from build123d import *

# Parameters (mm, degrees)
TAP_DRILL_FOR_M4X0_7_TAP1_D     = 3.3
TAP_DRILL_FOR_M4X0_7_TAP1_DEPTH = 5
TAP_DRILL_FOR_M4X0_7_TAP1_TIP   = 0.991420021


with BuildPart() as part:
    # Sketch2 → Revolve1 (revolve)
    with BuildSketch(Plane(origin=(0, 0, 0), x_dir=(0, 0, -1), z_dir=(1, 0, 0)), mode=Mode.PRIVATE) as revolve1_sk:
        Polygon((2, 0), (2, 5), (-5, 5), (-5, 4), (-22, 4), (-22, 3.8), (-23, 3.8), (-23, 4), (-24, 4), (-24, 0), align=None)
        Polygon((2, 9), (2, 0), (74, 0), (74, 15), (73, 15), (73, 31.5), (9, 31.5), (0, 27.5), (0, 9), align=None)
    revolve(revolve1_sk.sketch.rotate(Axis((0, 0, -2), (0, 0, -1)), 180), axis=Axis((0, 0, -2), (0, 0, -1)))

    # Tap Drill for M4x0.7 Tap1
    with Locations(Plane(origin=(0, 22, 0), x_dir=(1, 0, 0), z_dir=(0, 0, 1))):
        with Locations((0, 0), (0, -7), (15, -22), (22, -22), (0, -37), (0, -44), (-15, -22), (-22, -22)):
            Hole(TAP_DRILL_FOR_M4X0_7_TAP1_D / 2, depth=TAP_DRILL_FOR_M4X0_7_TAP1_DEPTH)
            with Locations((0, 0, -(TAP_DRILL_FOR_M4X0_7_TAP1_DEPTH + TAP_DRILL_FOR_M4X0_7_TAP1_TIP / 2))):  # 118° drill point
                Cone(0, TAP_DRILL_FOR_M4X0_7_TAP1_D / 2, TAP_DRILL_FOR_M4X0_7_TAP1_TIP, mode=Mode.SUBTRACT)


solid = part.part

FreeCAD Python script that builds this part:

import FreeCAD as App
import Part
import Sketcher
from FreeCAD import Vector


def add_polygon(sketch, points):
    """Adds a closed chain of lines whose ends are joined by coincident constraints."""
    first, n = sketch.GeometryCount, len(points)
    for a, b in zip(points, points[1:] + points[:1]):
        sketch.addGeometry(Part.LineSegment(App.Vector(*a, 0), App.Vector(*b, 0)), False)
    for i in range(n):
        sketch.addConstraint(Sketcher.Constraint("Coincident", first + i, 2, first + (i + 1) % n, 1))

doc = App.newDocument("Part")
body = doc.addObject("PartDesign::Body", "Body")

# Sketch on YZ plane
sketch1 = doc.addObject("Sketcher::SketchObject", "Sketch")
body.addObject(sketch1)
sketch1.AttachmentSupport = (doc.YZ_Plane, [""])
sketch1.MapMode = "FlatFace"
add_polygon(sketch1, [(5, -2), (5, 5), (4, 5), (4, 22), (3.8, 22), (3.8, 23), (4, 23), (4, 24), (0, 24), (0, -74), (15, -74), (15, -73), (31.5, -73), (31.5, -9), (27.5, 0), (9, 0), (9, -2)])  # lines 0-16
sketch1.addConstraint(Sketcher.Constraint("Vertical", 0))
sketch1.addConstraint(Sketcher.Constraint("Horizontal", 1))
sketch1.addConstraint(Sketcher.Constraint("Vertical", 2))
sketch1.addConstraint(Sketcher.Constraint("Horizontal", 3))
sketch1.addConstraint(Sketcher.Constraint("Vertical", 4))
sketch1.addConstraint(Sketcher.Constraint("Horizontal", 5))
sketch1.addConstraint(Sketcher.Constraint("Vertical", 6))
sketch1.addConstraint(Sketcher.Constraint("Horizontal", 7))
sketch1.addConstraint(Sketcher.Constraint("Vertical", 8))
sketch1.addConstraint(Sketcher.Constraint("Horizontal", 9))
sketch1.addConstraint(Sketcher.Constraint("Vertical", 10))
sketch1.addConstraint(Sketcher.Constraint("Horizontal", 11))
sketch1.addConstraint(Sketcher.Constraint("Vertical", 12))
sketch1.addConstraint(Sketcher.Constraint("Horizontal", 14))
sketch1.addConstraint(Sketcher.Constraint("Vertical", 15))
sketch1.addConstraint(Sketcher.Constraint("Horizontal", 16))
sketch1.addConstraint(Sketcher.Constraint("PointOnObject", 7, 2, -2))
sketch1.addConstraint(Sketcher.Constraint("PointOnObject", 13, 2, -1))
sketch1.addConstraint(Sketcher.Constraint("Vertical", 2, 2, 5, 2))
sketch1.addConstraint(Sketcher.Constraint("Equal", 7, 16))
sketch1.addConstraint(Sketcher.Constraint("Equal", 1, 4))
sketch1.addConstraint(Sketcher.Constraint("Equal", 4, 6))
sketch1.addConstraint(Sketcher.Constraint("Equal", 6, 10))
sketch1.addConstraint(Sketcher.Constraint("DistanceX", 1, 2, 1, 1, 1.0))
sketch1.addConstraint(Sketcher.Constraint("DistanceX", 7, 2, 7, 1, 4.0))
sketch1.addConstraint(Sketcher.Constraint("DistanceX", 9, 1, 9, 2, 15.0))
sketch1.addConstraint(Sketcher.Constraint("DistanceY", 0, 1, 0, 2, 7.0))
sketch1.addConstraint(Sketcher.Constraint("DistanceY", 2, 1, 2, 2, 17.0))
sketch1.addConstraint(Sketcher.Constraint("DistanceY", 8, 2, 8, 1, 98.0))
sketch1.addConstraint(Sketcher.Constraint("DistanceY", 12, 1, 12, 2, 64.0))
sketch1.addConstraint(Sketcher.Constraint("DistanceY", 15, 2, 15, 1, 2.0))
sketch1.addConstraint(Sketcher.Constraint("DistanceX", 3, 2, 3, 1, 0.2))
sketch1.addConstraint(Sketcher.Constraint("DistanceX", 11, 1, 11, 2, 16.5))
sketch1.addConstraint(Sketcher.Constraint("DistanceX", 14, 2, 14, 1, 18.5))
revolution = doc.addObject("PartDesign::Revolution", "Revolution")
body.addObject(revolution)
revolution.Profile = sketch1
revolution.ReferenceAxis = (sketch1, ["V_Axis"])
revolution.Angle = 360

# Sketch on XY plane
sketch2 = doc.addObject("Sketcher::SketchObject", "Sketch001")
body.addObject(sketch2)
sketch2.AttachmentSupport = (doc.XY_Plane, [""])
sketch2.MapMode = "FlatFace"
sketch2.addGeometry(Part.Circle(Vector(0, 22, 0), Vector(0, 0, 1), 1.6), False)
sketch2.addGeometry(Part.Circle(Vector(0, 15, 0), Vector(0, 0, 1), 1.6), False)
sketch2.addGeometry(Part.Circle(Vector(15, 0, 0), Vector(0, 0, 1), 1.6), False)
sketch2.addGeometry(Part.Circle(Vector(22, 0, 0), Vector(0, 0, 1), 1.6), False)
sketch2.addGeometry(Part.Circle(Vector(0, -15, 0), Vector(0, 0, 1), 1.6), False)
sketch2.addGeometry(Part.Circle(Vector(0, -22, 0), Vector(0, 0, 1), 1.6), False)
sketch2.addGeometry(Part.Circle(Vector(-15, 0, 0), Vector(0, 0, 1), 1.6), False)
sketch2.addGeometry(Part.Circle(Vector(-22, 0, 0), Vector(0, 0, 1), 1.6), False)
sketch2.addConstraint(Sketcher.Constraint("Equal", 0, 1))
sketch2.addConstraint(Sketcher.Constraint("Equal", 1, 2))
sketch2.addConstraint(Sketcher.Constraint("Equal", 2, 3))
sketch2.addConstraint(Sketcher.Constraint("Equal", 3, 4))
sketch2.addConstraint(Sketcher.Constraint("Equal", 4, 5))
sketch2.addConstraint(Sketcher.Constraint("Equal", 5, 6))
sketch2.addConstraint(Sketcher.Constraint("Equal", 6, 7))
sketch2.addConstraint(Sketcher.Constraint("Symmetric", 1, 3, 4, 3, -1, 1))
sketch2.addConstraint(Sketcher.Constraint("Symmetric", 0, 3, 5, 3, -1, 1))
sketch2.addConstraint(Sketcher.Constraint("Symmetric", 2, 3, 6, 3, -1, 1))
sketch2.addConstraint(Sketcher.Constraint("Symmetric", 3, 3, 7, 3, -1, 1))
sketch2.addConstraint(Sketcher.Constraint("PointOnObject", 0, 3, -2))
sketch2.addConstraint(Sketcher.Constraint("PointOnObject", 1, 3, -2))
sketch2.addConstraint(Sketcher.Constraint("PointOnObject", 2, 3, -1))
sketch2.addConstraint(Sketcher.Constraint("PointOnObject", 3, 3, -1))
sketch2.addConstraint(Sketcher.Constraint("Diameter", 0, 3.3))
sketch2.addConstraint(Sketcher.Constraint("DistanceY", -1, 1, 0, 3, 22.0))
sketch2.addConstraint(Sketcher.Constraint("DistanceY", -1, 1, 1, 3, 15.0))
sketch2.addConstraint(Sketcher.Constraint("DistanceX", -1, 1, 2, 3, 15.0))
sketch2.addConstraint(Sketcher.Constraint("DistanceX", -1, 1, 3, 3, 22.0))
doc.recompute()
hole = doc.addObject("PartDesign::Hole", "Hole")
body.addObject(hole)
hole.Profile = sketch2
hole.ThreadType = "None"
hole.Diameter = 3.3
hole.DepthType = "Dimension"
hole.Depth = 5
hole.DrillPoint = "Angled"
hole.DrillPointAngle = 118

doc.recompute()
